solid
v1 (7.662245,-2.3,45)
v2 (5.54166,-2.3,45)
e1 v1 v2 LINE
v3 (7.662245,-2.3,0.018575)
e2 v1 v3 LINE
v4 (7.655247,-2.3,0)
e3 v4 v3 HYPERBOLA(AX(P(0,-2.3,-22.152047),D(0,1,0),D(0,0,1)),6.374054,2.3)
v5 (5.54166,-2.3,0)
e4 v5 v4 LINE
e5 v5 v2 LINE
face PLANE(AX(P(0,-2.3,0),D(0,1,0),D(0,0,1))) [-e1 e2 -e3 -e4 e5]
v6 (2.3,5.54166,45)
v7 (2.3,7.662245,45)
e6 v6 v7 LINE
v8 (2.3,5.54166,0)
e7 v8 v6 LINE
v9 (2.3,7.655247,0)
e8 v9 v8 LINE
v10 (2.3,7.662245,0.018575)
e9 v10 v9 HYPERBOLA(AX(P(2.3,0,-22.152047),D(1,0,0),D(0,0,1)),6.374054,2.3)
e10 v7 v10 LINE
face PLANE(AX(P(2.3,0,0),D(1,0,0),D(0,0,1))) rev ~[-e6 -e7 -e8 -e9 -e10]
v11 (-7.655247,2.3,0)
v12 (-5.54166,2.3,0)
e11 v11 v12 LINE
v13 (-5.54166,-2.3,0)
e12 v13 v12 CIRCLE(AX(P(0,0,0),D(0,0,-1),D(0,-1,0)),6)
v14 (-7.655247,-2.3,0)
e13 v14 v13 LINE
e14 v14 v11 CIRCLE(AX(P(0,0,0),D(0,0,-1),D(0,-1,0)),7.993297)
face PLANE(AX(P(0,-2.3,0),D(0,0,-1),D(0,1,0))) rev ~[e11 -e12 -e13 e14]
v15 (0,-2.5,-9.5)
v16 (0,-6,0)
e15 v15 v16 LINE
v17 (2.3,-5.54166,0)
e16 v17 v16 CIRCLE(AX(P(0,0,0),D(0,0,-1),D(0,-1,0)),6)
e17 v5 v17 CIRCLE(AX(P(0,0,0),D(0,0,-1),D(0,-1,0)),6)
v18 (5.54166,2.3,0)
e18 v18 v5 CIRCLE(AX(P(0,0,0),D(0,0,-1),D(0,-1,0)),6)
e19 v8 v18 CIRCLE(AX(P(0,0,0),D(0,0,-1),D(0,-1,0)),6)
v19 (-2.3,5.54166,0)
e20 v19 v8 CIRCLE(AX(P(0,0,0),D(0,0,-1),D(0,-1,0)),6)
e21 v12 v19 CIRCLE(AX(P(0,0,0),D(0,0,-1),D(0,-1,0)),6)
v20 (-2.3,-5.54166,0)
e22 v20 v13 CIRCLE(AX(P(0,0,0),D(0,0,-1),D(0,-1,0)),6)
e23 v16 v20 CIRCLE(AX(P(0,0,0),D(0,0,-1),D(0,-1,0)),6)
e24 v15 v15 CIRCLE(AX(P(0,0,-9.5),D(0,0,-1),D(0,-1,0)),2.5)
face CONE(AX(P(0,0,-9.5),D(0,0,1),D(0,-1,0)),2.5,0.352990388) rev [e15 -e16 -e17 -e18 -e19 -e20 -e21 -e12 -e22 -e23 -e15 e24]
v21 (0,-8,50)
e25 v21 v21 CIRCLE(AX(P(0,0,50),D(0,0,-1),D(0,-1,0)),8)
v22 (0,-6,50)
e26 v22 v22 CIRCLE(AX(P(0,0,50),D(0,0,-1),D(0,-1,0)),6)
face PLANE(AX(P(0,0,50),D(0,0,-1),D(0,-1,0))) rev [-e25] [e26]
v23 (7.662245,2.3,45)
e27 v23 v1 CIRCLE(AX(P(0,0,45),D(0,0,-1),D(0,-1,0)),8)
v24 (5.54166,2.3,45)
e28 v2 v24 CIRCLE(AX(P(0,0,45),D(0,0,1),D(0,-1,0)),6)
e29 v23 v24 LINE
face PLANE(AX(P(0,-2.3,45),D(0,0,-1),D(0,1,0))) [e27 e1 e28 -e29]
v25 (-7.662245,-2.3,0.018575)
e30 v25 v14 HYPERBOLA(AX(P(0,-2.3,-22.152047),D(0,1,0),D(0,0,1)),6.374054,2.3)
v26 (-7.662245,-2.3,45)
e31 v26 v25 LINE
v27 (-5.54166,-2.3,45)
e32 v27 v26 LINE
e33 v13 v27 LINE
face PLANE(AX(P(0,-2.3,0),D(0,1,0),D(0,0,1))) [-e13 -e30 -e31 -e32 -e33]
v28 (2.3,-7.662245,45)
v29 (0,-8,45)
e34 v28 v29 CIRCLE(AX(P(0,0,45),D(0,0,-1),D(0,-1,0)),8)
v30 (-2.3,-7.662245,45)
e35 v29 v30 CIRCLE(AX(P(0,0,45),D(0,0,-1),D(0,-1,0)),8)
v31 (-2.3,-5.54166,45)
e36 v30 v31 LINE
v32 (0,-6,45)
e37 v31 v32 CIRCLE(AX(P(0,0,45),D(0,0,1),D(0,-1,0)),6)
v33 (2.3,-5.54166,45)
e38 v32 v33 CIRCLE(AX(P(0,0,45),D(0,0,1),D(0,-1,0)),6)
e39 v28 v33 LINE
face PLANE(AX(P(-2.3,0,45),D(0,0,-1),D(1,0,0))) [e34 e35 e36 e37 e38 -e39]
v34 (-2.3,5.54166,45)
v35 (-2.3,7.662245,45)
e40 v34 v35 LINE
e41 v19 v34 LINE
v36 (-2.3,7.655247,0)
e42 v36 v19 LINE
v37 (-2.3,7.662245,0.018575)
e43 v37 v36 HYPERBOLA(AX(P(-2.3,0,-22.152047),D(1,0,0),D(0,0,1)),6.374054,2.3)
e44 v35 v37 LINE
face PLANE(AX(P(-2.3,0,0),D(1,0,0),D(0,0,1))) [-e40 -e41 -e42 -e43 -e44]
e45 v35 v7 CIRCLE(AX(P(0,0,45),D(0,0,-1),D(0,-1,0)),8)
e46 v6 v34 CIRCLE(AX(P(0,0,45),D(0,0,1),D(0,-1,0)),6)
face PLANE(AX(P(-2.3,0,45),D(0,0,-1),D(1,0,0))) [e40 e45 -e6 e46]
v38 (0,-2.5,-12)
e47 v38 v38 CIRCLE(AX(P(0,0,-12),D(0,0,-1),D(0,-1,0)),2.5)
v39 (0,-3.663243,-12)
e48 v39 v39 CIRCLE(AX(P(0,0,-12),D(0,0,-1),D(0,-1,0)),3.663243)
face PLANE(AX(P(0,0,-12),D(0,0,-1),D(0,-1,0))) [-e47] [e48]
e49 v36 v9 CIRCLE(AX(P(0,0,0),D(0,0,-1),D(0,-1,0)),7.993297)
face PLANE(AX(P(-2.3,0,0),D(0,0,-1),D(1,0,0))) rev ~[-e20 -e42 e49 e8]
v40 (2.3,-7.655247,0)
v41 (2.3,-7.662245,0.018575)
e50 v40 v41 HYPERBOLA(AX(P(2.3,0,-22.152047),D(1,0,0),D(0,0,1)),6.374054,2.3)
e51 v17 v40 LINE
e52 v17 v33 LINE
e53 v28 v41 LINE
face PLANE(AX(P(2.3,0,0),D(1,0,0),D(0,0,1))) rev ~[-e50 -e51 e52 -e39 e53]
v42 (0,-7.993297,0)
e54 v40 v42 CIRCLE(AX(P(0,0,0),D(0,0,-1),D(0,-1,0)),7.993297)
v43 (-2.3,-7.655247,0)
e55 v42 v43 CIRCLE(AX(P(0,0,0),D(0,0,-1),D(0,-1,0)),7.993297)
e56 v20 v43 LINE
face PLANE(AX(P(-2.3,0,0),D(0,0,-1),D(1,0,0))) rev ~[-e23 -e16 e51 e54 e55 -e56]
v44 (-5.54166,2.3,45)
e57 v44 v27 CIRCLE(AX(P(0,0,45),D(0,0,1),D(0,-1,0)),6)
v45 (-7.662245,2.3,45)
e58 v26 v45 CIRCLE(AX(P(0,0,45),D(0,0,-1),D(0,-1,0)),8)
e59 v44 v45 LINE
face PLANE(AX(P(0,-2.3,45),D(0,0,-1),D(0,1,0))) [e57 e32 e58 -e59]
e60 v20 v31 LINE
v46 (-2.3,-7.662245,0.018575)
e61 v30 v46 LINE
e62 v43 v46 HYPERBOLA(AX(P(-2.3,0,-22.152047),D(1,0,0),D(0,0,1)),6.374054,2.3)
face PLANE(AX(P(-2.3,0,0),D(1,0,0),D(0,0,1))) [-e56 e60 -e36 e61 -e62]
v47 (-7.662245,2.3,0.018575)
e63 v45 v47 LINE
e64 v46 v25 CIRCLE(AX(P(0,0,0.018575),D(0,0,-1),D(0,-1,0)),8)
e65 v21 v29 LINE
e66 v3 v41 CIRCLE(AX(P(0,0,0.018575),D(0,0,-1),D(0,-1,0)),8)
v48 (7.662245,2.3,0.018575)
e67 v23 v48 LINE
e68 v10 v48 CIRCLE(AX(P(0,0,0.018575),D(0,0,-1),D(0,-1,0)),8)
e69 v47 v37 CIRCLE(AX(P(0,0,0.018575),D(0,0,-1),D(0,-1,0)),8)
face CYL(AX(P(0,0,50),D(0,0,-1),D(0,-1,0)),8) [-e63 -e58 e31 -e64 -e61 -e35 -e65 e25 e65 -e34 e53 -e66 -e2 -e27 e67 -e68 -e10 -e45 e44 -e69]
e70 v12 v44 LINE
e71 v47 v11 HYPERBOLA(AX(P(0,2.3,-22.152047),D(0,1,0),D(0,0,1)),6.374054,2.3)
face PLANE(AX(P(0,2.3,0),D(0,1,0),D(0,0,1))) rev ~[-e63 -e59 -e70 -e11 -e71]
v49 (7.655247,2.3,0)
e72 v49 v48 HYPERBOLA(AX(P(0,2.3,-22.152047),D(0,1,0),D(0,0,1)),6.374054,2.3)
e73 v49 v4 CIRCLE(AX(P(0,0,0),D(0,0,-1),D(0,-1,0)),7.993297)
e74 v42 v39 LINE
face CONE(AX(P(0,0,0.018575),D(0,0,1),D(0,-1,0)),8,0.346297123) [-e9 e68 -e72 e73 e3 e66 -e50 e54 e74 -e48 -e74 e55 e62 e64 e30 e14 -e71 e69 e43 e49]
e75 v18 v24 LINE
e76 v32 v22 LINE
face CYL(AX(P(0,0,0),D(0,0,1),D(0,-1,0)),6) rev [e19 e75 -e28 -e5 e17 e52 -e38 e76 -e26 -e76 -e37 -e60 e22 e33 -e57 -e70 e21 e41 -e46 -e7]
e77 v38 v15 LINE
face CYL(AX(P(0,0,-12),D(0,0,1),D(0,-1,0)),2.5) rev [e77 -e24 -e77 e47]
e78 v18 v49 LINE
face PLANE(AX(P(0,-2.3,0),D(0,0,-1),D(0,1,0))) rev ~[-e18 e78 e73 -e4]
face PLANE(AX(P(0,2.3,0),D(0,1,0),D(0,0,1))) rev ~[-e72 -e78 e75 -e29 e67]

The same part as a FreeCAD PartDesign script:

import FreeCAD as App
import Part
import Sketcher

doc = App.newDocument("Part")
body = doc.addObject("PartDesign::Body", "Body")

sketch1 = body.newObject("Sketcher::SketchObject", "Sketch")
sketch1.AttachmentSupport = (doc.getObject("YZ_Plane"), [""])
sketch1.MapMode = "FlatFace"
sketch1.addGeometry([
    Part.LineSegment(App.Vector(-6, 0, 0), App.Vector(-6, 50, 0)),
    Part.LineSegment(App.Vector(-6, 50, 0), App.Vector(-8, 50, 0)),
    Part.LineSegment(App.Vector(-8, 50, 0), App.Vector(-8, 0, 0)),
    Part.LineSegment(App.Vector(-8, 0, 0), App.Vector(-3.7, -12, 0)),
    Part.LineSegment(App.Vector(-3.7, -12, 0), App.Vector(-2.5, -12, 0)),
    Part.LineSegment(App.Vector(-2.5, -12, 0), App.Vector(-2.5, -9.5, 0)),
    Part.LineSegment(App.Vector(-2.5, -9.5, 0), App.Vector(-6, 0, 0)),
], False)
sketch1.addConstraint([
    Sketcher.Constraint("Coincident", 0, 2, 1, 1),
    Sketcher.Constraint("Coincident", 1, 2, 2, 1),
    Sketcher.Constraint("Coincident", 2, 2, 3, 1),
    Sketcher.Constraint("Coincident", 3, 2, 4, 1),
    Sketcher.Constraint("Coincident", 4, 2, 5, 1),
    Sketcher.Constraint("Coincident", 5, 2, 6, 1),
    Sketcher.Constraint("Coincident", 6, 2, 0, 1),
    Sketcher.Constraint("Vertical", 0),
    Sketcher.Constraint("Horizontal", 1),
    Sketcher.Constraint("Vertical", 2),
    Sketcher.Constraint("Horizontal", 4),
    Sketcher.Constraint("Vertical", 5),
    Sketcher.Constraint("PointOnObject", 6, 2, -1),
    Sketcher.Constraint("DistanceX", 1, 2, 1, 1, 2.0),
    Sketcher.Constraint("DistanceY", 0, 1, 0, 2, 50.0),
    Sketcher.Constraint("DistanceY", 5, 1, 5, 2, 2.5),
    Sketcher.Constraint("DistanceX", 0, 2, -1, 1, 6.0),
    Sketcher.Constraint("DistanceY", 3, 2, -1, 1, 12.0),
    Sketcher.Constraint("DistanceX", 4, 2, -1, 1, 2.5),
    Sketcher.Constraint("DistanceX", 4, 1, 4, 2, 1.163243),
    Sketcher.Constraint("DistanceY", 2, 2, 2, 1, 49.981425),
])
revolution = body.newObject("PartDesign::Revolution", "Revolution")
revolution.Profile = sketch1
revolution.ReferenceAxis = (sketch1, ["V_Axis"])
revolution.Angle = 360

sketch2 = body.newObject("Sketcher::SketchObject", "Sketch001")
sketch2.AttachmentSupport = (doc.getObject("XZ_Plane"), [""])
sketch2.MapMode = "FlatFace"
sketch2.addGeometry([
    Part.LineSegment(App.Vector(-2.3, 45, 0), App.Vector(-2.3, 0, 0)),
    Part.LineSegment(App.Vector(-2.3, 0, 0), App.Vector(2.3, 0, 0)),
    Part.LineSegment(App.Vector(2.3, 0, 0), App.Vector(2.3, 45, 0)),
    Part.LineSegment(App.Vector(2.3, 45, 0), App.Vector(-2.3, 45, 0)),
], False)
sketch2.addConstraint([
    Sketcher.Constraint("Coincident", 0, 2, 1, 1),
    Sketcher.Constraint("Coincident", 1, 2, 2, 1),
    Sketcher.Constraint("Coincident", 2, 2, 3, 1),
    Sketcher.Constraint("Coincident", 3, 2, 0, 1),
    Sketcher.Constraint("Vertical", 0),
    Sketcher.Constraint("Horizontal", 1),
    Sketcher.Constraint("Vertical", 2),
    Sketcher.Constraint("Horizontal", 3),
    Sketcher.Constraint("Symmetric", 0, 2, 1, 2, -1, 1),
    Sketcher.Constraint("DistanceY", 0, 2, 0, 1, 45.0),
    Sketcher.Constraint("DistanceX", 1, 1, 1, 2, 4.6),
])
pocket1 = body.newObject("PartDesign::Pocket", "Pocket")
pocket1.Profile = sketch2
pocket1.Length = 25
pocket1.Midplane = True

sketch3 = body.newObject("Sketcher::SketchObject", "Sketch002")
sketch3.AttachmentSupport = (doc.getObject("YZ_Plane"), [""])
sketch3.MapMode = "FlatFace"
sketch3.addGeometry([
    Part.LineSegment(App.Vector(-2.3, 45, 0), App.Vector(-2.3, 0, 0)),
    Part.LineSegment(App.Vector(-2.3, 0, 0), App.Vector(2.3, 0, 0)),
    Part.LineSegment(App.Vector(2.3, 0, 0), App.Vector(2.3, 45, 0)),
    Part.LineSegment(App.Vector(2.3, 45, 0), App.Vector(-2.3, 45, 0)),
], False)
sketch3.addConstraint([
    Sketcher.Constraint("Coincident", 0, 2, 1, 1),
    Sketcher.Constraint("Coincident", 1, 2, 2, 1),
    Sketcher.Constraint("Coincident", 2, 2, 3, 1),
    Sketcher.Constraint("Coincident", 3, 2, 0, 1),
    Sketcher.Constraint("Vertical", 0),
    Sketcher.Constraint("Horizontal", 1),
    Sketcher.Constraint("Vertical", 2),
    Sketcher.Constraint("Horizontal", 3),
    Sketcher.Constraint("Symmetric", 0, 2, 1, 2, -1, 1),
    Sketcher.Constraint("DistanceY", 0, 2, 0, 1, 45.0),
    Sketcher.Constraint("DistanceX", 1, 1, 1, 2, 4.6),
])
pocket2 = body.newObject("PartDesign::Pocket", "Pocket001")
pocket2.Profile = sketch3
pocket2.Length = 25
pocket2.Midplane = True

doc.recompute()
